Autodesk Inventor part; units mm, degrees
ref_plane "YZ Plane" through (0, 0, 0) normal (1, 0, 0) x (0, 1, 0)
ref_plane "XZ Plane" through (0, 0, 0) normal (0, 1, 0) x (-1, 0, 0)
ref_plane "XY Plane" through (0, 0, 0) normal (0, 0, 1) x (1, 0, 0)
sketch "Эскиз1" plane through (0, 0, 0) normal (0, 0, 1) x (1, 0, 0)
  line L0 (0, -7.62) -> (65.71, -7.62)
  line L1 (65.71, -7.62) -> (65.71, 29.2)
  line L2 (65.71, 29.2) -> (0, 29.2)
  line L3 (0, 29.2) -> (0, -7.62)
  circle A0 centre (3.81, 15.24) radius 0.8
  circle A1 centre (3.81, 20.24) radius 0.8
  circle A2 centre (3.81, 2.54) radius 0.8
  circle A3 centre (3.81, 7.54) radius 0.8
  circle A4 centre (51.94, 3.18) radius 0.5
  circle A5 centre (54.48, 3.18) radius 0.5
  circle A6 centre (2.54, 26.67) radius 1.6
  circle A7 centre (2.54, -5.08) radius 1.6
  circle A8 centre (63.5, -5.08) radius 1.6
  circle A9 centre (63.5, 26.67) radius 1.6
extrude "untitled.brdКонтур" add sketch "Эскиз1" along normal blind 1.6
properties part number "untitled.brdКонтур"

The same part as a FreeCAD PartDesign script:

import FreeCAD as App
import Part
import Sketcher
from FreeCAD import Vector
Q = App.Units.Quantity


def add_polygon(sketch, points):
    """Adds a closed chain of lines whose ends are joined by coincident constraints."""
    first, n = sketch.GeometryCount, len(points)
    for a, b in zip(points, points[1:] + points[:1]):
        sketch.addGeometry(Part.LineSegment(App.Vector(*a, 0), App.Vector(*b, 0)), False)
    for i in range(n):
        sketch.addConstraint(Sketcher.Constraint("Coincident", first + i, 2, first + (i + 1) % n, 1))

doc = App.newDocument("Part")
body = doc.addObject("PartDesign::Body", "Body")

sketch1 = body.newObject("Sketcher::SketchObject", "Sketch")
sketch1.AttachmentSupport = (doc.getObject("XY_Plane"), [""])
sketch1.MapMode = "FlatFace"
add_polygon(sketch1, [(0, 29.2), (0, -7.6), (65.7, -7.6), (65.7, 29.2)])
sketch1.addGeometry(Part.Circle(Vector(2.5, -5.1, 0), Vector(0, 0, 1), 1.6), False)
sketch1.addGeometry(Part.Circle(Vector(3.8, 2.5, 0), Vector(0, 0, 1), 0.8), False)
sketch1.addGeometry(Part.Circle(Vector(3.8, 7.5, 0), Vector(0, 0, 1), 0.8), False)
sketch1.addGeometry(Part.Circle(Vector(63.5, -5.1, 0), Vector(0, 0, 1), 1.6), False)
sketch1.addGeometry(Part.Circle(Vector(51.9, 3.2, 0), Vector(0, 0, 1), 0.5), False)
sketch1.addGeometry(Part.Circle(Vector(54.5, 3.2, 0), Vector(0, 0, 1), 0.5), False)
sketch1.addGeometry(Part.Circle(Vector(3.8, 15.2, 0), Vector(0, 0, 1), 0.8), False)
sketch1.addGeometry(Part.Circle(Vector(3.8, 20.2, 0), Vector(0, 0, 1), 0.8), False)
sketch1.addGeometry(Part.Circle(Vector(2.5, 26.7, 0), Vector(0, 0, 1), 1.6), False)
sketch1.addGeometry(Part.Circle(Vector(63.5, 26.7, 0), Vector(0, 0, 1), 1.6), False)
sketch1.addConstraint([
    Sketcher.Constraint("Vertical", 0),
    Sketcher.Constraint("Horizontal", 1),
    Sketcher.Constraint("Vertical", 2),
    Sketcher.Constraint("Horizontal", 3),
    Sketcher.Constraint("Equal", 5, 6),
    Sketcher.Constraint("Equal", 4, 7),
    Sketcher.Constraint("Equal", 8, 9),
    Sketcher.Constraint("Equal", 6, 10),
    Sketcher.Constraint("Equal", 10, 11),
    Sketcher.Constraint("Equal", 7, 12),
    Sketcher.Constraint("Equal", 12, 13),
    Sketcher.Constraint("PointOnObject", 0, 2, -2),
    Sketcher.Constraint("Horizontal", 4, 3, 7, 3),
    Sketcher.Constraint("Horizontal", 8, 3, 9, 3),
    Sketcher.Constraint("Horizontal", 12, 3, 13, 3),
    Sketcher.Constraint("Vertical", 5, 3, 6, 3),
    Sketcher.Constraint("Vertical", 6, 3, 10, 3),
    Sketcher.Constraint("Vertical", 10, 3, 11, 3),
    Sketcher.Constraint("Vertical", 4, 3, 12, 3),
    Sketcher.Constraint("Vertical", 7, 3, 13, 3),
    Sketcher.Constraint("Diameter", 8, Q("1 mm")),
    Sketcher.Constraint("Diameter", 4, Q("3.2 mm")),
    Sketcher.Constraint("Diameter", 5, Q("1.6 mm")),
    Sketcher.Constraint("DistanceY", 5, 3, 6, 3, Q("5 mm")),
    Sketcher.Constraint("DistanceY", 10, 3, 11, 3, Q("5 mm")),
    Sketcher.Constraint("DistanceX", 1, 1, 1, 2, Q("65.71 mm")),
    Sketcher.Constraint("DistanceY", 0, 2, 0, 1, Q("36.82 mm")),
    Sketcher.Constraint("DistanceX", -1, 1, 7, 3, Q("63.5 mm")),
    Sketcher.Constraint("DistanceY", -1, 1, 2, 2, Q("29.2 mm")),
    Sketcher.Constraint("DistanceX", 4, 3, 8, 3, Q("49.4 mm")),
    Sketcher.Constraint("DistanceY", 6, 3, 10, 3, Q("7.7 mm")),
    Sketcher.Constraint("DistanceY", 1, 2, 9, 3, Q("10.8 mm")),
    Sketcher.Constraint("DistanceX", 5, 3, 1, 2, Q("61.9 mm")),
    Sketcher.Constraint("DistanceX", -1, 1, 4, 3, Q("2.54 mm")),
    Sketcher.Constraint("DistanceY", 4, 3, -1, 1, Q("5.08 mm")),
    Sketcher.Constraint("DistanceY", -1, 1, 5, 3, Q("2.54 mm")),
    Sketcher.Constraint("DistanceX", -1, 1, 9, 3, Q("54.48 mm")),
    Sketcher.Constraint("DistanceY", -1, 1, 12, 3, Q("26.67 mm")),
])
pad1 = body.newObject("PartDesign::Pad", "Pad")
pad1.Profile = sketch1
pad1.Length = 1.6

doc.recompute()
